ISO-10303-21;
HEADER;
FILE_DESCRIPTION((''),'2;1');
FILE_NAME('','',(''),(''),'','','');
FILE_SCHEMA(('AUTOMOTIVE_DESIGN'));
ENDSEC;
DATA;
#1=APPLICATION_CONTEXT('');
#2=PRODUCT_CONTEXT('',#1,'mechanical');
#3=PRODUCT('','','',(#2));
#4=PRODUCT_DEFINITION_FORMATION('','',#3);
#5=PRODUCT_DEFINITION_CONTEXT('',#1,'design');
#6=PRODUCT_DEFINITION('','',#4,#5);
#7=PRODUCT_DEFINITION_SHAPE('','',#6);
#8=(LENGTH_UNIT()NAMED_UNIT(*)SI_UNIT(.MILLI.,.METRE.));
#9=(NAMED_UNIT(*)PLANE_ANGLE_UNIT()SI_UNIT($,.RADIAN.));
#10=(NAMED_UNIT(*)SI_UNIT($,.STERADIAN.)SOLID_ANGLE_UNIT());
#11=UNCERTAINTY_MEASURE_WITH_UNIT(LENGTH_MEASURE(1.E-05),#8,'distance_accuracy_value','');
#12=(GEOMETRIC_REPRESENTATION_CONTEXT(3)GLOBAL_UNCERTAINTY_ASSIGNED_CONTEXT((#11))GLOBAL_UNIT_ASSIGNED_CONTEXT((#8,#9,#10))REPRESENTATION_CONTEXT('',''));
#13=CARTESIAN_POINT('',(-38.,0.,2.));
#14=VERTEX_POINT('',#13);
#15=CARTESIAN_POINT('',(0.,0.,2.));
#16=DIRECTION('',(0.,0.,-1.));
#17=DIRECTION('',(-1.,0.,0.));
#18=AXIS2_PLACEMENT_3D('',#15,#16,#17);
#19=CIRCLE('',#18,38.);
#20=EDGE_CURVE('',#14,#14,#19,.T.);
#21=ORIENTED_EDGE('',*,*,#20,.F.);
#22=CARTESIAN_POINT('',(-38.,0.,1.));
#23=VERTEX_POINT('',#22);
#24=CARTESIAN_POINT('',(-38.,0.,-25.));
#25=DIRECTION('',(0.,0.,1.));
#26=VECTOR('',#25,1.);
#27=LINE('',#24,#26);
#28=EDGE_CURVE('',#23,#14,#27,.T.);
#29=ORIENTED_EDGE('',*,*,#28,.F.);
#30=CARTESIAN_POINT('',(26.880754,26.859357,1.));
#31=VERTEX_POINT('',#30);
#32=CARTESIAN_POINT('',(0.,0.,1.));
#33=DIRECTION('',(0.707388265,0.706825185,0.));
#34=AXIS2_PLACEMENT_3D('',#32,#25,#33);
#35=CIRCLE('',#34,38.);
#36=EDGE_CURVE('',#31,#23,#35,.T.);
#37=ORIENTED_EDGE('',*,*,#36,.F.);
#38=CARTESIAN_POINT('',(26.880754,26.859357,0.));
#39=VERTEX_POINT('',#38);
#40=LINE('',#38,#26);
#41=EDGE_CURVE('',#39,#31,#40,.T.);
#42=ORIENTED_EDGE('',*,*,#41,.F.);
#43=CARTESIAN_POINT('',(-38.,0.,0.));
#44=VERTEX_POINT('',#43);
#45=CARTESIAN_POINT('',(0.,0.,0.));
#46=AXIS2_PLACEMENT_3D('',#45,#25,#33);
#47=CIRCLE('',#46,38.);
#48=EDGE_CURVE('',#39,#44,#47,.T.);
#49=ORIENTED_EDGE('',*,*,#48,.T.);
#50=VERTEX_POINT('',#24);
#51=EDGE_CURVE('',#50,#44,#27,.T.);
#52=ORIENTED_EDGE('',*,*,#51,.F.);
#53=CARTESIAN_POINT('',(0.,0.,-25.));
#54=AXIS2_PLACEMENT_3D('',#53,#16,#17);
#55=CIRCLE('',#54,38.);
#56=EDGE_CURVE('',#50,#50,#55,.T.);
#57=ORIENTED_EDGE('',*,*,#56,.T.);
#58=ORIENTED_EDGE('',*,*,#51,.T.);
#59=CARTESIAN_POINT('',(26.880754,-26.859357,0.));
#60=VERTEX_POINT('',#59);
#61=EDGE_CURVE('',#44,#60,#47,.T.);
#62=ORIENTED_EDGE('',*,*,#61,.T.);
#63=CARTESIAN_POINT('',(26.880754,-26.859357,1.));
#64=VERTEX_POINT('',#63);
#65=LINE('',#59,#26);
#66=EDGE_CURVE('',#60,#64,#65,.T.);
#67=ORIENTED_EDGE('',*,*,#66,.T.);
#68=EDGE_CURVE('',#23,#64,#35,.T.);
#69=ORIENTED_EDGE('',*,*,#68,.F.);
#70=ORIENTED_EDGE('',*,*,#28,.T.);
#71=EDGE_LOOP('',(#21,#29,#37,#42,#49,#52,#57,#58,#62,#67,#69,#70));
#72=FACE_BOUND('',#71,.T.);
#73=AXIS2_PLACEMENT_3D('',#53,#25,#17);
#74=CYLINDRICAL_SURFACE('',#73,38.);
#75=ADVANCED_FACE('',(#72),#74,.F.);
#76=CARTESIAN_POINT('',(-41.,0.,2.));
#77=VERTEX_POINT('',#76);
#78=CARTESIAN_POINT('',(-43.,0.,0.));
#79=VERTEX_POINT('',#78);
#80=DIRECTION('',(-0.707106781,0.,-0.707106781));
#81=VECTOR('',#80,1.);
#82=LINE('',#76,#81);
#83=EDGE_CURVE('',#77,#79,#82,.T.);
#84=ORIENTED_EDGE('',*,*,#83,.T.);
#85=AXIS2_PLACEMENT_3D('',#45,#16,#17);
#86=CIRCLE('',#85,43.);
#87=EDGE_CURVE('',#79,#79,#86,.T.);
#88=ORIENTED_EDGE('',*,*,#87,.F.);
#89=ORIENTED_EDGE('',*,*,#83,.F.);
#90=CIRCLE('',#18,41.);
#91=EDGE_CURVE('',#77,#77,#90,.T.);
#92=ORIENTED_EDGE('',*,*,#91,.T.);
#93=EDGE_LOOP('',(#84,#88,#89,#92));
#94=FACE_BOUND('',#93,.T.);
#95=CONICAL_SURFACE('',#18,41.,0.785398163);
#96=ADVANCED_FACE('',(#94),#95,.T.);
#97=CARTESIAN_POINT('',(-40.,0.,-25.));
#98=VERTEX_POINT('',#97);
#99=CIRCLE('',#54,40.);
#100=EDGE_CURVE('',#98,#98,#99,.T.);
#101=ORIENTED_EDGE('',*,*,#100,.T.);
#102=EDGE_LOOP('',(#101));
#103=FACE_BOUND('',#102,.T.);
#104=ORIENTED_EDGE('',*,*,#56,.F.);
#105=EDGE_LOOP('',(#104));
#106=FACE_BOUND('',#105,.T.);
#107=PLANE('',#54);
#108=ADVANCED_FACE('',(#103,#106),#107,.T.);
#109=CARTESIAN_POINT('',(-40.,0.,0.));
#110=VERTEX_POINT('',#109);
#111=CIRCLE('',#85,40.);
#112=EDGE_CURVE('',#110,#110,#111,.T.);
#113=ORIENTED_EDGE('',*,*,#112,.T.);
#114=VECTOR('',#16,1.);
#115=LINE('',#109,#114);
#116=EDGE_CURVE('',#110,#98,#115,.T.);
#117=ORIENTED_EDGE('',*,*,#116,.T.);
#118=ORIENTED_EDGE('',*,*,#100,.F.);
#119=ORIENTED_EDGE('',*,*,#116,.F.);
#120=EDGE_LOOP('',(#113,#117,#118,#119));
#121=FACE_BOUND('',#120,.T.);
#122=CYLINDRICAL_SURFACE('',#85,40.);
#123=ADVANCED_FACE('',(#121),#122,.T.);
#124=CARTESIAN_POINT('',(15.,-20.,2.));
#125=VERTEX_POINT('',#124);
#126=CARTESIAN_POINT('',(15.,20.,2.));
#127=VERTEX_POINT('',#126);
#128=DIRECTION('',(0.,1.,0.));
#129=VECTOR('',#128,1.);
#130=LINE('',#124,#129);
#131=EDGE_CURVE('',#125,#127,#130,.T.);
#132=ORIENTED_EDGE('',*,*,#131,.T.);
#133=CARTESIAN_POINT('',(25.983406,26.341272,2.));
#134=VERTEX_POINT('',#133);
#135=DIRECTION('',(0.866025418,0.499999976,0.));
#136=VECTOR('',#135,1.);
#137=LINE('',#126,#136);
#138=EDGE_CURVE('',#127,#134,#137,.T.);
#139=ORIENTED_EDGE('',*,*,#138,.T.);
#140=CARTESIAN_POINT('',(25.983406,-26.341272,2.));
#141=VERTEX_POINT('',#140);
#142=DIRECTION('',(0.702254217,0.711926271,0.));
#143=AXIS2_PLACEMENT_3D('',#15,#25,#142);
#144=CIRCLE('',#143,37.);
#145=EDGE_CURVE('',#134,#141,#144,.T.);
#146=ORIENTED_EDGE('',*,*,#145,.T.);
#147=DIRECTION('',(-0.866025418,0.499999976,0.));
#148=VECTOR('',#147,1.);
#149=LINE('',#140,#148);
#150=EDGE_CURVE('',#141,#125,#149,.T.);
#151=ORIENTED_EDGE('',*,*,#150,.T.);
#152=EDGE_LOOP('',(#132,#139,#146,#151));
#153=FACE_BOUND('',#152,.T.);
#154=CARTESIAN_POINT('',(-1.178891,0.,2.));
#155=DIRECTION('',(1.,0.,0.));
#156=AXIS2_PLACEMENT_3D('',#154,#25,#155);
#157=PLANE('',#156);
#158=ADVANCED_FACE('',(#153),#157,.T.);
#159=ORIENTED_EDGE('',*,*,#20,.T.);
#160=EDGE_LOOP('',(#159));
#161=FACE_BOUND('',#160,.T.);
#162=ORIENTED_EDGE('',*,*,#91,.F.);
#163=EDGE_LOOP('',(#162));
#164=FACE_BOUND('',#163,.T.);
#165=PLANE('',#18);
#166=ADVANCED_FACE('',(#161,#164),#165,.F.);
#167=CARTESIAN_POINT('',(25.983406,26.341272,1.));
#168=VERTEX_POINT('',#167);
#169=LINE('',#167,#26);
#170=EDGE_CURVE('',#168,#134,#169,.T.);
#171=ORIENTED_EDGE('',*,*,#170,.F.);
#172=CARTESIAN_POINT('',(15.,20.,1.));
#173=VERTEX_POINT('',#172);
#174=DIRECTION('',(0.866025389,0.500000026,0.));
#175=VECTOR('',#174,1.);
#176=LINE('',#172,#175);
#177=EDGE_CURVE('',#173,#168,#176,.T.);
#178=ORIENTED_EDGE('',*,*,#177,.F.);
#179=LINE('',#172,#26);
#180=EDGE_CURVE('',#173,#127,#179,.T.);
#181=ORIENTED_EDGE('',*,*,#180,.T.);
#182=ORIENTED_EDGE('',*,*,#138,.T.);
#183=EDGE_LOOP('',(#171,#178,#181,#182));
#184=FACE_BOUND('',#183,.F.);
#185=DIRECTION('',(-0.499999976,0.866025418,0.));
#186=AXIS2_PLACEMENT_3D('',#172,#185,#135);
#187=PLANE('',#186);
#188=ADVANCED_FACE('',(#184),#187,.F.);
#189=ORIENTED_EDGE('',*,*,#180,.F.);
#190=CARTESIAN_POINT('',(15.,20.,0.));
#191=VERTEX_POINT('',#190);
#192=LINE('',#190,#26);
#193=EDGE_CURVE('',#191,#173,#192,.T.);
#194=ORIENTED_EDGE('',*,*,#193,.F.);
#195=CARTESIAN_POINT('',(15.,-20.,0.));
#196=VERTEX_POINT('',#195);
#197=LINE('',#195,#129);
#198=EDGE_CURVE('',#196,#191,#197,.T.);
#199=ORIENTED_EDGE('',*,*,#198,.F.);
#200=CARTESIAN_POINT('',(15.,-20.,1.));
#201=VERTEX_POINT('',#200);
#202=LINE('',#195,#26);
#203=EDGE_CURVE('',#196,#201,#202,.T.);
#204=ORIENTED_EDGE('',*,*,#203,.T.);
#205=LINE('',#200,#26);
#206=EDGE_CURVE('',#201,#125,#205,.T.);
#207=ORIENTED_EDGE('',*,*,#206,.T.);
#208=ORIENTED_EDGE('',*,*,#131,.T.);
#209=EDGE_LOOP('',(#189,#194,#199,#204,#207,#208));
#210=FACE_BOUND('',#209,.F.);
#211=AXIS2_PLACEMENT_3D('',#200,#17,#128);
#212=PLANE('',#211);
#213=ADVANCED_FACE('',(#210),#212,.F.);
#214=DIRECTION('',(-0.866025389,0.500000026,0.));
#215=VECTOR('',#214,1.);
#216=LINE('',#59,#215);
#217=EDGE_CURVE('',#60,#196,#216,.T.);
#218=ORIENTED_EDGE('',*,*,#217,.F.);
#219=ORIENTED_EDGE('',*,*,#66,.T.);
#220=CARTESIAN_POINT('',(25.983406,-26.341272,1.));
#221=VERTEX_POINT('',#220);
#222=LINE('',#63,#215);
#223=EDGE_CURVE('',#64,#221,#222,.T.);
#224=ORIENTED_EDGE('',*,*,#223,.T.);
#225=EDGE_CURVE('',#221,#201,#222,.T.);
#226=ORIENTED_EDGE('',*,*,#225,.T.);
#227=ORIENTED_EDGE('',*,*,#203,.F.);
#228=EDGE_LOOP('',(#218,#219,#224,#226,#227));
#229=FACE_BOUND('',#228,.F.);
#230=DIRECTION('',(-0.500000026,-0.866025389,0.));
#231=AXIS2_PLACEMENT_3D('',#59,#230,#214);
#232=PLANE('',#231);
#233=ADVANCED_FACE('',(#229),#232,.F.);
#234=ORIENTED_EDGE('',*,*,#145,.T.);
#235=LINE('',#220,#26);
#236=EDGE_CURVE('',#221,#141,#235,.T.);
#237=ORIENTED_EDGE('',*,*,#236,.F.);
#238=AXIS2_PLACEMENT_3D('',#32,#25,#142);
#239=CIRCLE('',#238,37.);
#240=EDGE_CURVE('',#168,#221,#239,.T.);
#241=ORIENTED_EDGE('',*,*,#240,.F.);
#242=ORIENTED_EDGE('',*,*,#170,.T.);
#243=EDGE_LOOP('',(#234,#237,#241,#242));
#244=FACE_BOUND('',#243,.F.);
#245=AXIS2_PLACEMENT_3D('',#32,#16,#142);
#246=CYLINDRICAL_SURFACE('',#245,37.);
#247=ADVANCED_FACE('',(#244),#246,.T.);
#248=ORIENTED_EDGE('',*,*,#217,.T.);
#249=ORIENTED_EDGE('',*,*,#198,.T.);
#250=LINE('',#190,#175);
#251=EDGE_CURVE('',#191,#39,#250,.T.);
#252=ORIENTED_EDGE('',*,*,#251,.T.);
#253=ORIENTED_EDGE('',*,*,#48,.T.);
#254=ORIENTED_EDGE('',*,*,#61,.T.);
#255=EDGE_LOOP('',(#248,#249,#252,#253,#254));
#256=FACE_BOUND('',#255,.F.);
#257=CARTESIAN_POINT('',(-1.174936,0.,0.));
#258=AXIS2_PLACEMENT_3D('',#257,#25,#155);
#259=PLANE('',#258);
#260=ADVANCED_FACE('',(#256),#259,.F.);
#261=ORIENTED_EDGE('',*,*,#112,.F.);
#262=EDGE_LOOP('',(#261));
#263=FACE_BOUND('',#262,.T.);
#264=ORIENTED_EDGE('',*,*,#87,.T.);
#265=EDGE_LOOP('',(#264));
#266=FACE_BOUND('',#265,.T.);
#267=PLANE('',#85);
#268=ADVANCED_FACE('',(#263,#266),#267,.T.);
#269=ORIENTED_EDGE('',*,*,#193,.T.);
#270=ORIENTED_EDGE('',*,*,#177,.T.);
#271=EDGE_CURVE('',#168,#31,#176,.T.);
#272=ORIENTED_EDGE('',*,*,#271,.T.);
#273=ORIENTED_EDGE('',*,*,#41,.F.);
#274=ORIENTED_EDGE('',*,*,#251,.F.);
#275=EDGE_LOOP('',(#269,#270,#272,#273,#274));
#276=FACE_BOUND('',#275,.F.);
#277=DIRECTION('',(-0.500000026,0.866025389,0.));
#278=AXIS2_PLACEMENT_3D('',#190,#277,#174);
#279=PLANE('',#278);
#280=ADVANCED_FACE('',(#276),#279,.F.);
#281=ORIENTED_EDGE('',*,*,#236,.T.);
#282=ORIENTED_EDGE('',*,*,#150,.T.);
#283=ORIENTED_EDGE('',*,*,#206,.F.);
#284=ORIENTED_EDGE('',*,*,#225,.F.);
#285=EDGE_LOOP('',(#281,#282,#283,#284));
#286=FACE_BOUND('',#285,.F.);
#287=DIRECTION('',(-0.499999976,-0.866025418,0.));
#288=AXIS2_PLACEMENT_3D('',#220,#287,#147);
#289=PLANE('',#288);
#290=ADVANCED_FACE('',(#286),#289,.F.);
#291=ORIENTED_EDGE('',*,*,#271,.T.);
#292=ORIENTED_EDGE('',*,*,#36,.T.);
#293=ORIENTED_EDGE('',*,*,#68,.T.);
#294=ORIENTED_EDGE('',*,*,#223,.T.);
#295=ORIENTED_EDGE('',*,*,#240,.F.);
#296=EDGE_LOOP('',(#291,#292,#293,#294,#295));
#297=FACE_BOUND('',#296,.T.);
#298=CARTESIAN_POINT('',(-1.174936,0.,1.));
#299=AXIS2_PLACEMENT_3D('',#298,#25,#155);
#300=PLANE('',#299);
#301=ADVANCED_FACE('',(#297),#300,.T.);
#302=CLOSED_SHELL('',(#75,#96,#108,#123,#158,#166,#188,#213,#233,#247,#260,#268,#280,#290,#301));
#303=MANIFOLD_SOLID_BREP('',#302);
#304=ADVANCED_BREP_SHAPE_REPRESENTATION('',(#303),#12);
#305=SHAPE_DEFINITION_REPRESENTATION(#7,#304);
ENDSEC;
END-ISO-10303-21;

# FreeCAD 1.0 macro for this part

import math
import FreeCAD as App
import Part
import Sketcher

V = App.Vector
Q = App.Units.Quantity


def add_polygon(sketch, points):
    """Adds a closed chain of lines whose ends are joined by coincident constraints."""
    first, n = sketch.GeometryCount, len(points)
    for a, b in zip(points, points[1:] + points[:1]):
        sketch.addGeometry(Part.LineSegment(App.Vector(*a, 0), App.Vector(*b, 0)), False)
    for i in range(n):
        sketch.addConstraint(Sketcher.Constraint("Coincident", first + i, 2, first + (i + 1) % n, 1))

doc = App.newDocument("Part")
body = doc.addObject("PartDesign::Body", "Body")

sketch1 = body.newObject("Sketcher::SketchObject", "Sketch")
sketch1.AttachmentSupport = (doc.getObject("XZ_Plane"), [""])
sketch1.MapMode = "FlatFace"
add_polygon(sketch1, [(-38, -25), (-38, 2), (-41, 2), (-43, 0), (-40, 0), (-40, -25)])
sketch1.addConstraint(Sketcher.Constraint("Vertical", 0))
sketch1.addConstraint(Sketcher.Constraint("Horizontal", 1))
sketch1.addConstraint(Sketcher.Constraint("Horizontal", 3))
sketch1.addConstraint(Sketcher.Constraint("Vertical", 4))
sketch1.addConstraint(Sketcher.Constraint("Horizontal", 5))
sketch1.addConstraint(Sketcher.Constraint("PointOnObject", 2, 2, -1))
sketch1.addConstraint(Sketcher.Constraint("Equal", 1, 3))
sketch1.addConstraint(Sketcher.Constraint("DistanceX", 1, 2, 1, 1, Q("3 mm")))
sketch1.addConstraint(Sketcher.Constraint("DistanceX", 5, 1, 5, 2, Q("2 mm")))
sketch1.addConstraint(Sketcher.Constraint("DistanceY", 0, 1, 0, 2, Q("27 mm")))
sketch1.addConstraint(Sketcher.Constraint("DistanceY", 4, 2, 4, 1, Q("25 mm")))
sketch1.addConstraint(Sketcher.Constraint("DistanceX", 0, 2, -1, 1, Q("38 mm")))
revolution = body.newObject("PartDesign::Revolution", "Revolution")
revolution.Profile = sketch1
revolution.ReferenceAxis = (sketch1, ["V_Axis"])
revolution.Angle = 360

sketch2 = body.newObject("Sketcher::SketchObject", "Sketch001")
sketch2.AttachmentSupport = (doc.getObject("XY_Plane"), [""])
sketch2.MapMode = "FlatFace"
sketch2.addGeometry(Part.LineSegment(V(15, 20, 0), V(27, 27, 0)), False)
sketch2.addGeometry(Part.ArcOfCircle(Part.Circle(V(0, 0, 0), V(0, 0, 1), 38), math.radians(45), math.radians(315)), False)
sketch2.addGeometry(Part.LineSegment(V(27, -27, 0), V(15, -20, 0)), False)
sketch2.addGeometry(Part.LineSegment(V(15, -20, 0), V(15, 20, 0)), False)
sketch2.addConstraint(Sketcher.Constraint("Coincident", 0, 2, 1, 1))
sketch2.addConstraint(Sketcher.Constraint("Coincident", 1, 2, 2, 1))
sketch2.addConstraint(Sketcher.Constraint("Coincident", 2, 2, 3, 1))
sketch2.addConstraint(Sketcher.Constraint("Coincident", 3, 2, 0, 1))
sketch2.addConstraint(Sketcher.Constraint("Vertical", 3))
sketch2.addConstraint(Sketcher.Constraint("Coincident", 1, 3, -1, 1))
sketch2.addConstraint(Sketcher.Constraint("Vertical", 0, 2, 1, 2))
sketch2.addConstraint(Sketcher.Constraint("Equal", 0, 2))
sketch2.addConstraint(Sketcher.Constraint("Radius", 1, Q("38 mm")))
sketch2.addConstraint(Sketcher.Constraint("DistanceY", 3, 1, 3, 2, Q("40 mm")))
sketch2.addConstraint(Sketcher.Constraint("Angle", 0, Q("30.000002 deg")))
sketch2.addConstraint(Sketcher.Constraint("DistanceX", -1, 1, 2, 2, Q("15 mm")))
pad1 = body.newObject("PartDesign::Pad", "Pad")
pad1.Profile = sketch2
pad1.Length = 1

sketch3 = body.newObject("Sketcher::SketchObject", "Sketch002")
sketch3.AttachmentSupport = (doc.getObject("XY_Plane"), [""])
sketch3.MapMode = "FlatFace"
sketch3.AttachmentOffset = App.Placement(V(0, 0, 1), App.Rotation())
sketch3.addGeometry(Part.LineSegment(V(15, 20, 0), V(26, 26, 0)), False)
sketch3.addGeometry(Part.ArcOfCircle(Part.Circle(V(0, 0, 0), V(0, 0, 1), 37), math.radians(45), math.radians(315)), False)
sketch3.addGeometry(Part.LineSegment(V(26, -26, 0), V(15, -20, 0)), False)
sketch3.addGeometry(Part.LineSegment(V(15, -20, 0), V(15, 20, 0)), False)
sketch3.addConstraint(Sketcher.Constraint("Coincident", 0, 2, 1, 1))
sketch3.addConstraint(Sketcher.Constraint("Coincident", 1, 2, 2, 1))
sketch3.addConstraint(Sketcher.Constraint("Coincident", 2, 2, 3, 1))
sketch3.addConstraint(Sketcher.Constraint("Coincident", 3, 2, 0, 1))
sketch3.addConstraint(Sketcher.Constraint("Vertical", 3))
sketch3.addConstraint(Sketcher.Constraint("Coincident", 1, 3, -1, 1))
sketch3.addConstraint(Sketcher.Constraint("Vertical", 0, 2, 1, 2))
sketch3.addConstraint(Sketcher.Constraint("Equal", 0, 2))
sketch3.addConstraint(Sketcher.Constraint("Radius", 1, Q("37 mm")))
sketch3.addConstraint(Sketcher.Constraint("DistanceY", 3, 1, 3, 2, Q("40 mm")))
sketch3.addConstraint(Sketcher.Constraint("Angle", 0, Q("29.999998 deg")))
sketch3.addConstraint(Sketcher.Constraint("DistanceX", -1, 1, 2, 2, Q("15 mm")))
pad2 = body.newObject("PartDesign::Pad", "Pad001")
pad2.Profile = sketch3
pad2.Length = 1

doc.recompute()
